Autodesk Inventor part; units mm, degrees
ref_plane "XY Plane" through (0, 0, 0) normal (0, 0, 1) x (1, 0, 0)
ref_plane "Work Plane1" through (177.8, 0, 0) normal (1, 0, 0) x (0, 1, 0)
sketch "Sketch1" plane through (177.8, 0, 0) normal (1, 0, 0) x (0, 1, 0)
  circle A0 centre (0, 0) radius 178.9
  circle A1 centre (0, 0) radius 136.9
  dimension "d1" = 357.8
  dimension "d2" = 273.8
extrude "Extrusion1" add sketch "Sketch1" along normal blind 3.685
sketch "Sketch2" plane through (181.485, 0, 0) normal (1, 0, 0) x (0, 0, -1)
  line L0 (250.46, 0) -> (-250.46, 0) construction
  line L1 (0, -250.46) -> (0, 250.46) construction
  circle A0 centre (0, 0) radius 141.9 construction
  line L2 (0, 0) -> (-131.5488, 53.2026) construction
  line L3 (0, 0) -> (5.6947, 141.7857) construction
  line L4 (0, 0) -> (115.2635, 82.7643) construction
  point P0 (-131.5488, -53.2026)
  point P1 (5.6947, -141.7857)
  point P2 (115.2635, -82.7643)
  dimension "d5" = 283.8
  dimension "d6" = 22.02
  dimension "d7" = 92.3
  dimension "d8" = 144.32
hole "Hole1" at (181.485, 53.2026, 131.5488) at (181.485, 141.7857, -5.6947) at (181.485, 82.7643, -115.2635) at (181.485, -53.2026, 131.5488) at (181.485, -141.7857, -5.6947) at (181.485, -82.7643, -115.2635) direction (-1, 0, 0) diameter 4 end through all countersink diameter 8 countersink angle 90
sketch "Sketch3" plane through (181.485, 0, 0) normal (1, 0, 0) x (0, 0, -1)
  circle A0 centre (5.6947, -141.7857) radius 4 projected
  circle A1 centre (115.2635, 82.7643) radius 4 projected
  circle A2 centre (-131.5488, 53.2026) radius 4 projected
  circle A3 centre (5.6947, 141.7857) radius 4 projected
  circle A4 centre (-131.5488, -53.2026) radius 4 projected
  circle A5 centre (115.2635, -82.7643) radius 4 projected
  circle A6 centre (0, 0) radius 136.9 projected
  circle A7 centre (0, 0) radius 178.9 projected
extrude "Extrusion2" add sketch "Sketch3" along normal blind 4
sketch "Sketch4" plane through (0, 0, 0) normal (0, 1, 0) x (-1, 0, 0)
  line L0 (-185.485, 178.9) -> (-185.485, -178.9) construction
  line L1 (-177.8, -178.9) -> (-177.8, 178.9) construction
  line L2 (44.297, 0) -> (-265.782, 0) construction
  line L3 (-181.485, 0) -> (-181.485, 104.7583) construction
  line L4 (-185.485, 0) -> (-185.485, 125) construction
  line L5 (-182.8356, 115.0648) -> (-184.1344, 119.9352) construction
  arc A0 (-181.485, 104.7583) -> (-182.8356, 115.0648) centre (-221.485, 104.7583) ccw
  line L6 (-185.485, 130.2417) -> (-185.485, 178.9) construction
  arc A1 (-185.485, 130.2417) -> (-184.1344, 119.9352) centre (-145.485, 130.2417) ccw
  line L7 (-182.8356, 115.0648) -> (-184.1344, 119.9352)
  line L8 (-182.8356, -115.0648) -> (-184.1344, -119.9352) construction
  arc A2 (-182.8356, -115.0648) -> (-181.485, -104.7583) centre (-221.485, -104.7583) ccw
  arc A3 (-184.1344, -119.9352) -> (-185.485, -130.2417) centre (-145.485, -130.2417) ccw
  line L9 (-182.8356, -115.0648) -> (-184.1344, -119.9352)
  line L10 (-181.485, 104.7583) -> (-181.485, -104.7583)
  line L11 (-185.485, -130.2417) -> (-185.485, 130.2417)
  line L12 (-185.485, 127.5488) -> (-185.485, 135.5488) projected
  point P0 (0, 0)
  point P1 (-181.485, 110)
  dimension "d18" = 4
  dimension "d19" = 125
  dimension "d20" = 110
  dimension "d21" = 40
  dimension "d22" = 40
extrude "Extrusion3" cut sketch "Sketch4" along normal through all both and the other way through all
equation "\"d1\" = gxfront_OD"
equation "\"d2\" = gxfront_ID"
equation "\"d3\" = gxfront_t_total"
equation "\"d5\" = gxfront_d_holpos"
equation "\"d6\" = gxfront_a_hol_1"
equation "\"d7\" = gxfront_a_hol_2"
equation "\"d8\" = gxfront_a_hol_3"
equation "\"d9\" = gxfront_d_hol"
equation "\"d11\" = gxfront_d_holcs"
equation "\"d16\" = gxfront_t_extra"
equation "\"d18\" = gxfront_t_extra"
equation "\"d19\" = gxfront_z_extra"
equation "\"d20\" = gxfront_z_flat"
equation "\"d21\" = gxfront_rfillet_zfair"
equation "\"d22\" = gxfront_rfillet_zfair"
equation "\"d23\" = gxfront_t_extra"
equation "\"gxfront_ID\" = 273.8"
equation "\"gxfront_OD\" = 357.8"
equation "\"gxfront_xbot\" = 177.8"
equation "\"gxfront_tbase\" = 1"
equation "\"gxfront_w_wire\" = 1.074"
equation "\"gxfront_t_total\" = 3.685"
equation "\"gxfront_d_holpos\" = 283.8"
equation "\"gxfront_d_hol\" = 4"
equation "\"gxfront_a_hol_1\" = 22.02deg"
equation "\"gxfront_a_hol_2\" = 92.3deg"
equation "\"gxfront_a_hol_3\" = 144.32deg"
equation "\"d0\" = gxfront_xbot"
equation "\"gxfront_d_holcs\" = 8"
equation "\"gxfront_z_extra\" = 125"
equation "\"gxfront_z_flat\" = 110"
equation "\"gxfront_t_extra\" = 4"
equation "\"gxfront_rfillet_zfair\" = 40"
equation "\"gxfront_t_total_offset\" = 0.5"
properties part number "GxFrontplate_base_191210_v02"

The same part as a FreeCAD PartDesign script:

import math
import FreeCAD as App
import Part
import Sketcher

doc = App.newDocument("Part")
body = doc.addObject("PartDesign::Body", "Body")

sketch1 = body.newObject("Sketcher::SketchObject", "Sketch")
sketch1.AttachmentSupport = (doc.getObject("YZ_Plane"), [""])
sketch1.MapMode = "FlatFace"
sketch1.AttachmentOffset = App.Placement(App.Vector(0, 0, 177.8), App.Rotation())
sketch1.addGeometry([
    Part.Circle(App.Vector(0, 0, 0), App.Vector(0, 0, 1), 179),
    Part.Circle(App.Vector(0, 0, 0), App.Vector(0, 0, 1), 137),
], False)
sketch1.addConstraint([
    Sketcher.Constraint("Coincident", 0, 3, -1, 1),
    Sketcher.Constraint("Coincident", 1, 3, -1, 1),
    Sketcher.Constraint("Diameter", 0, 357.8),
    Sketcher.Constraint("Diameter", 1, 273.8),
])
pad1 = body.newObject("PartDesign::Pad", "Pad")
pad1.Profile = sketch1
pad1.Length = 3.685

sketch2 = body.newObject("Sketcher::SketchObject", "Sketch001")
sketch2.AttachmentSupport = (doc.getObject("YZ_Plane"), [""])
sketch2.MapMode = "FlatFace"
sketch2.AttachmentOffset = App.Placement(App.Vector(0, 0, 181.485), App.Rotation())
sketch2.addGeometry([
    Part.Circle(App.Vector(53.2, 131.5, 0), App.Vector(0, 0, 1), 2),
    Part.Circle(App.Vector(141.8, -5.7, 0), App.Vector(0, 0, 1), 2),
    Part.Circle(App.Vector(82.8, -115.3, 0), App.Vector(0, 0, 1), 2),
    Part.Circle(App.Vector(-53.2, 131.5, 0), App.Vector(0, 0, 1), 2),
    Part.Circle(App.Vector(-141.8, -5.7, 0), App.Vector(0, 0, 1), 2),
    Part.Circle(App.Vector(-82.8, -115.3, 0), App.Vector(0, 0, 1), 2),
], False)
sketch2.addConstraint([
    Sketcher.Constraint("Equal", 0, 1),
    Sketcher.Constraint("Equal", 1, 2),
    Sketcher.Constraint("Equal", 2, 3),
    Sketcher.Constraint("Equal", 3, 4),
    Sketcher.Constraint("Equal", 4, 5),
    Sketcher.Constraint("Symmetric", 0, 3, 3, 3, -2),
    Sketcher.Constraint("Symmetric", 1, 3, 4, 3, -2),
    Sketcher.Constraint("Symmetric", 2, 3, 5, 3, -2),
    Sketcher.Constraint("Diameter", 0, 4.0),
    Sketcher.Constraint("DistanceX", 4, 3, 2, 3, 224.55),
    Sketcher.Constraint("DistanceX", 0, 3, 1, 3, 88.583),
    Sketcher.Constraint("DistanceX", -1, 1, 0, 3, 53.2026),
    Sketcher.Constraint("DistanceY", -1, 1, 0, 3, 131.5488),
    Sketcher.Constraint("DistanceY", 1, 3, -1, 1, 5.6947),
    Sketcher.Constraint("DistanceY", 2, 3, -1, 1, 115.2635),
])
doc.recompute()
hole = body.newObject("PartDesign::Hole", "Hole")
hole.Profile = sketch2
hole.ThreadType = "None"
hole.Diameter = 4
hole.DepthType = "ThroughAll"
hole.HoleCutType = "Countersink"
hole.HoleCutDiameter = 8
hole.HoleCutCountersinkAngle = 90

sketch3 = body.newObject("Sketcher::SketchObject", "Sketch002")
sketch3.AttachmentSupport = (doc.getObject("YZ_Plane"), [""])
sketch3.MapMode = "FlatFace"
sketch3.AttachmentOffset = App.Placement(App.Vector(0, 0, 181.485), App.Rotation())
sketch3.addGeometry([
    Part.Circle(App.Vector(0, 0, 0), App.Vector(0, 0, 1), 178.9),
    Part.Circle(App.Vector(-53.2, 131.5, 0), App.Vector(0, 0, 1), 4),
    Part.Circle(App.Vector(-141.8, -5.7, 0), App.Vector(0, 0, 1), 4),
    Part.Circle(App.Vector(-82.8, -115.3, 0), App.Vector(0, 0, 1), 4),
    Part.Circle(App.Vector(53.2, 131.5, 0), App.Vector(0, 0, 1), 4),
    Part.Circle(App.Vector(0, 0, 0), App.Vector(0, 0, 1), 136.9),
    Part.Circle(App.Vector(82.8, -115.3, 0), App.Vector(0, 0, 1), 4),
    Part.Circle(App.Vector(141.8, -5.7, 0), App.Vector(0, 0, 1), 4),
], False)
sketch3.addConstraint([
    Sketcher.Constraint("Coincident", 0, 3, -1, 1),
    Sketcher.Constraint("Coincident", 5, 3, -1, 1),
    Sketcher.Constraint("Equal", 1, 2),
    Sketcher.Constraint("Equal", 2, 3),
    Sketcher.Constraint("Equal", 3, 4),
    Sketcher.Constraint("Equal", 4, 6),
    Sketcher.Constraint("Equal", 6, 7),
    Sketcher.Constraint("Symmetric", 1, 3, 4, 3, -2),
    Sketcher.Constraint("Symmetric", 3, 3, 6, 3, -2),
    Sketcher.Constraint("Symmetric", 2, 3, 7, 3, -2),
    Sketcher.Constraint("Diameter", 1, 8.0),
    Sketcher.Constraint("Diameter", 0, 357.8),
    Sketcher.Constraint("Diameter", 5, 273.8),
    Sketcher.Constraint("DistanceX", 2, 3, 6, 3, 224.55),
    Sketcher.Constraint("DistanceX", 2, 3, 1, 3, 88.583),
    Sketcher.Constraint("DistanceX", 1, 3, -1, 1, 53.2026),
    Sketcher.Constraint("DistanceY", -1, 1, 1, 3, 131.5488),
    Sketcher.Constraint("DistanceY", 2, 3, -1, 1, 5.6947),
    Sketcher.Constraint("DistanceY", 3, 3, -1, 1, 115.2635),
])
pad2 = body.newObject("PartDesign::Pad", "Pad001")
pad2.Profile = sketch3
pad2.Length = 4

sketch4 = body.newObject("Sketcher::SketchObject", "Sketch003")
sketch4.AttachmentSupport = (doc.getObject("XZ_Plane"), [""])
sketch4.MapMode = "FlatFace"
sketch4.addGeometry([
    Part.LineSegment(App.Vector(181, -105, 0), App.Vector(181, 105, 0)),
    Part.ArcOfCircle(Part.Circle(App.Vector(221, 105, 0), App.Vector(0, 0, 1), 40), math.radians(165.07), math.radians(180)),
    Part.LineSegment(App.Vector(183, 115, 0), App.Vector(184, 120, 0)),
    Part.ArcOfCircle(Part.Circle(App.Vector(145, 130, 0), App.Vector(0, 0, 1), 40), math.radians(-14.93), math.radians(0)),
    Part.LineSegment(App.Vector(185, 130, 0), App.Vector(185, -130, 0)),
    Part.ArcOfCircle(Part.Circle(App.Vector(145, -130, 0), App.Vector(0, 0, 1), 40), math.radians(0), math.radians(14.93)),
    Part.LineSegment(App.Vector(184, -120, 0), App.Vector(183, -115, 0)),
    Part.ArcOfCircle(Part.Circle(App.Vector(221, -105, 0), App.Vector(0, 0, 1), 40), math.radians(180), math.radians(194.93)),
], False)
sketch4.addConstraint([
    Sketcher.Constraint("Tangent", 0, 2, 1, 2),
    Sketcher.Constraint("Tangent", 1, 1, 2, 1),
    Sketcher.Constraint("Tangent", 2, 2, 3, 1),
    Sketcher.Constraint("Tangent", 3, 2, 4, 1),
    Sketcher.Constraint("Tangent", 4, 2, 5, 1),
    Sketcher.Constraint("Tangent", 5, 2, 6, 1),
    Sketcher.Constraint("Tangent", 6, 2, 7, 2),
    Sketcher.Constraint("Tangent", 7, 1, 0, 1),
    Sketcher.Constraint("Vertical", 0),
    Sketcher.Constraint("Vertical", 4),
    Sketcher.Constraint("Equal", 1, 3),
    Sketcher.Constraint("Equal", 3, 5),
    Sketcher.Constraint("Equal", 5, 7),
    Sketcher.Constraint("Symmetric", 2, 2, 5, 2, -1),
    Sketcher.Constraint("Radius", 1, 40.0),
    Sketcher.Constraint("DistanceX", 0, 2, 3, 2, 4.0),
    Sketcher.Constraint("DistanceY", 5, 3, 1, 3, 235.0),
    Sketcher.Constraint("DistanceY", 0, 1, 0, 2, 209.5166),
    Sketcher.Constraint("DistanceX", -1, 1, 1, 3, 221.485),
])
pocket1 = body.newObject("PartDesign::Pocket", "Pocket")
pocket1.Profile = sketch4
pocket1.Type = "ThroughAll"
pocket1.Midplane = True

doc.recompute()
